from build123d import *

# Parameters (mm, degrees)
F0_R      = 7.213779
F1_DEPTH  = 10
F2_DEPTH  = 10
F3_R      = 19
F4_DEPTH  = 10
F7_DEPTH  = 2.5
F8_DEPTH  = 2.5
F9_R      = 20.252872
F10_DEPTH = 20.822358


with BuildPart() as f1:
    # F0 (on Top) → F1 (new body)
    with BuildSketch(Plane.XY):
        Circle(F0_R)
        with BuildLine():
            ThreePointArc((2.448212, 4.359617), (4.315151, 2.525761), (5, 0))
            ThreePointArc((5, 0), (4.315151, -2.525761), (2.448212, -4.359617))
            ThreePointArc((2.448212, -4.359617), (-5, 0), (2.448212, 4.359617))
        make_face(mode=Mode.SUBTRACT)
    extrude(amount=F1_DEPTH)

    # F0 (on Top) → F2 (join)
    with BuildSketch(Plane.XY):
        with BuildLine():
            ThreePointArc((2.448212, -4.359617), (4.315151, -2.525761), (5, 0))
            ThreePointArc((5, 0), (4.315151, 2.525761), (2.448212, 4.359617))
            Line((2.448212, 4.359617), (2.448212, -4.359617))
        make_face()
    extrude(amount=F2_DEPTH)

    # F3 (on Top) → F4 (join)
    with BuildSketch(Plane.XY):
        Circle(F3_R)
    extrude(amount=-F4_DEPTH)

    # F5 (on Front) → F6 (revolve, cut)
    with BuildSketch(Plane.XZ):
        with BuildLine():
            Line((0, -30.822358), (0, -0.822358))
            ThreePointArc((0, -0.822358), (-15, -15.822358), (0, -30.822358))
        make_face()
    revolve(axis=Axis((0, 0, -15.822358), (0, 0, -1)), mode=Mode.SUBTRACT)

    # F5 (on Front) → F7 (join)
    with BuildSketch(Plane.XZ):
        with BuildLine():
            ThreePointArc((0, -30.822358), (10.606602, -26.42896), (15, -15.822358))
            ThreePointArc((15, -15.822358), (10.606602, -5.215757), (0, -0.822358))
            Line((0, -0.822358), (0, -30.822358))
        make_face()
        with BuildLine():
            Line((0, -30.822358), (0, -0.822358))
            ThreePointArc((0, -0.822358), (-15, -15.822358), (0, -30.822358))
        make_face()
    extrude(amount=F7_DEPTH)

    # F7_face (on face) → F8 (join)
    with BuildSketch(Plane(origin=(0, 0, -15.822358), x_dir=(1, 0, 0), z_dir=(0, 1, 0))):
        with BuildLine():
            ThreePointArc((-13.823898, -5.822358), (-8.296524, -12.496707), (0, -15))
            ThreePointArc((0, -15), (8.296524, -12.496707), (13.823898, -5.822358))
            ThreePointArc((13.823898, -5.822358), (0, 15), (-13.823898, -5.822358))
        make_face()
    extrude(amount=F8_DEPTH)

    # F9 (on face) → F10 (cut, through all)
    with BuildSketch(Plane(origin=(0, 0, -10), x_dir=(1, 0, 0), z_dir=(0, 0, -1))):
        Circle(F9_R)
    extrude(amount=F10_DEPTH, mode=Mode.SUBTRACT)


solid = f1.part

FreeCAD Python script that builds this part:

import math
import FreeCAD as App
import Part
import Sketcher

doc = App.newDocument("Part")
body = doc.addObject("PartDesign::Body", "Body")

sketch1 = doc.addObject("Sketcher::SketchObject", "Sketch")
body.addObject(sketch1)
sketch1.AttachmentSupport = (doc.XY_Plane, [""])
sketch1.MapMode = "FlatFace"
sketch1.addGeometry([
    Part.Circle(App.Vector(0, 0, 0), App.Vector(0, 0, 1), 7),
    Part.ArcOfCircle(Part.Circle(App.Vector(0, 0, 0), App.Vector(0, 0, 1), 5), math.radians(61), math.radians(299)),
    Part.ArcOfCircle(Part.Circle(App.Vector(0, 0, 0), App.Vector(0, 0, 1), 5), math.radians(0), math.radians(61)),
    Part.ArcOfCircle(Part.Circle(App.Vector(0, 0, 0), App.Vector(0, 0, 1), 5), math.radians(-61), math.radians(0)),
], False)
sketch1.addConstraint([
    Sketcher.Constraint("Tangent", 1, 1, 2, 2),
    Sketcher.Constraint("Tangent", 2, 1, 3, 2),
    Sketcher.Constraint("Tangent", 3, 1, 1, 2),
    Sketcher.Constraint("Coincident", 0, 3, -1, 1),
    Sketcher.Constraint("Coincident", 1, 3, -1, 1),
    Sketcher.Constraint("PointOnObject", 2, 1, -1),
    Sketcher.Constraint("Vertical", 1, 1, 3, 1),
    Sketcher.Constraint("Radius", 1, 5.0),
    Sketcher.Constraint("Diameter", 0, 14.427558),
    Sketcher.Constraint("DistanceX", -1, 1, 1, 1, 2.448212),
])
pad1 = doc.addObject("PartDesign::Pad", "Pad")
body.addObject(pad1)
pad1.Profile = sketch1
pad1.Length = 10

sketch2 = doc.addObject("Sketcher::SketchObject", "Sketch001")
body.addObject(sketch2)
sketch2.AttachmentSupport = (doc.XY_Plane, [""])
sketch2.MapMode = "FlatFace"
sketch2.addGeometry([
    Part.ArcOfCircle(Part.Circle(App.Vector(0, 0, 0), App.Vector(0, 0, 1), 5), math.radians(-61), math.radians(0)),
    Part.ArcOfCircle(Part.Circle(App.Vector(0, 0, 0), App.Vector(0, 0, 1), 5), math.radians(0), math.radians(61)),
    Part.LineSegment(App.Vector(2, 4, 0), App.Vector(2, -4, 0)),
], False)
sketch2.addConstraint([
    Sketcher.Constraint("Tangent", 0, 2, 1, 1),
    Sketcher.Constraint("Coincident", 1, 2, 2, 1),
    Sketcher.Constraint("Coincident", 2, 2, 0, 1),
    Sketcher.Constraint("Vertical", 2),
    Sketcher.Constraint("Coincident", 0, 3, -1, 1),
    Sketcher.Constraint("Equal", 0, 1),
    Sketcher.Constraint("PointOnObject", 0, 2, -1),
    Sketcher.Constraint("DistanceX", -1, 1, 0, 2, 5.0),
    Sketcher.Constraint("DistanceY", 2, 2, 2, 1, 8.719234),
])
pad2 = doc.addObject("PartDesign::Pad", "Pad001")
body.addObject(pad2)
pad2.Profile = sketch2
pad2.Length = 10

sketch3 = doc.addObject("Sketcher::SketchObject", "Sketch002")
body.addObject(sketch3)
sketch3.AttachmentSupport = (doc.XY_Plane, [""])
sketch3.MapMode = "FlatFace"
sketch3.addGeometry(Part.Circle(App.Vector(0, 0, 0), App.Vector(0, 0, 1), 19), False)
sketch3.addConstraint([
    Sketcher.Constraint("Coincident", 0, 3, -1, 1),
    Sketcher.Constraint("Diameter", 0, 38.0),
])
pad3 = doc.addObject("PartDesign::Pad", "Pad002")
body.addObject(pad3)
pad3.Profile = sketch3
pad3.Length = 10
pad3.Reversed = True

sketch4 = doc.addObject("Sketcher::SketchObject", "Sketch003")
body.addObject(sketch4)
sketch4.AttachmentSupport = (doc.XZ_Plane, [""])
sketch4.MapMode = "FlatFace"
sketch4.addGeometry([
    Part.LineSegment(App.Vector(0, -31, 0), App.Vector(0, -1, 0)),
    Part.ArcOfCircle(Part.Circle(App.Vector(0, -16, 0), App.Vector(0, 0, 1), 15), math.radians(90), math.radians(270)),
], False)
sketch4.addConstraint([
    Sketcher.Constraint("Coincident", 0, 1, 1, 2),
    Sketcher.Constraint("Coincident", 1, 1, 0, 2),
    Sketcher.Constraint("Vertical", 0),
    Sketcher.Constraint("PointOnObject", 1, 3, -2),
    Sketcher.Constraint("PointOnObject", 0, 1, -2),
    Sketcher.Constraint("Radius", 1, 15.0),
    Sketcher.Constraint("DistanceY", 0, 1, -1, 1, 30.822358),
])
groove = doc.addObject("PartDesign::Groove", "Groove")
body.addObject(groove)
groove.Profile = sketch4
groove.ReferenceAxis = (sketch4, ["V_Axis"])
groove.Angle = 360

sketch5 = doc.addObject("Sketcher::SketchObject", "Sketch004")
body.addObject(sketch5)
sketch5.AttachmentSupport = (doc.XZ_Plane, [""])
sketch5.MapMode = "FlatFace"
sketch5.addGeometry([
    Part.ArcOfCircle(Part.Circle(App.Vector(0, -16, 0), App.Vector(0, 0, 1), 15), math.radians(-90), math.radians(0)),
    Part.ArcOfCircle(Part.Circle(App.Vector(0, -16, 0), App.Vector(0, 0, 1), 15), math.radians(0), math.radians(90)),
    Part.ArcOfCircle(Part.Circle(App.Vector(0, -16, 0), App.Vector(0, 0, 1), 15), math.radians(90), math.radians(270)),
], False)
sketch5.addConstraint([
    Sketcher.Constraint("Tangent", 0, 2, 1, 1),
    Sketcher.Constraint("Tangent", 1, 2, 2, 1),
    Sketcher.Constraint("Tangent", 2, 2, 0, 1),
    Sketcher.Constraint("PointOnObject", 0, 3, -2),
    Sketcher.Constraint("PointOnObject", 1, 2, -2),
    Sketcher.Constraint("PointOnObject", 2, 2, -2),
    Sketcher.Constraint("Horizontal", 2, 3, 0, 2),
    Sketcher.Constraint("Radius", 0, 14.999999),
    Sketcher.Constraint("DistanceY", 0, 3, -1, 1, 15.822359),
])
pad4 = doc.addObject("PartDesign::Pad", "Pad003")
body.addObject(pad4)
pad4.Profile = sketch5
pad4.Length = 2.5

sketch6 = doc.addObject("Sketcher::SketchObject", "Sketch005")
body.addObject(sketch6)
sketch6.AttachmentSupport = (doc.XZ_Plane, [""])
sketch6.MapMode = "FlatFace"
sketch6.addGeometry([
    Part.ArcOfCircle(Part.Circle(App.Vector(0, -16, 0), App.Vector(0, 0, 1), 15), math.radians(90), math.radians(157)),
    Part.ArcOfCircle(Part.Circle(App.Vector(0, -16, 0), App.Vector(0, 0, 1), 15), math.radians(23), math.radians(90)),
    Part.ArcOfCircle(Part.Circle(App.Vector(0, -16, 0), App.Vector(0, 0, 1), 15), math.radians(157), math.radians(383)),
], False)
sketch6.addConstraint([
    Sketcher.Constraint("Tangent", 0, 1, 1, 2),
    Sketcher.Constraint("Tangent", 1, 1, 2, 2),
    Sketcher.Constraint("Tangent", 2, 1, 0, 2),
    Sketcher.Constraint("Symmetric", 1, 1, 2, 1, -2),
    Sketcher.Constraint("PointOnObject", 0, 1, -2),
    Sketcher.Constraint("Radius", 0, 15.000001),
    Sketcher.Constraint("DistanceY", 1, 1, -1, 1, 10.0),
    Sketcher.Constraint("DistanceX", -1, 1, 1, 1, 13.823898),
])
pad5 = doc.addObject("PartDesign::Pad", "Pad004")
body.addObject(pad5)
pad5.Profile = sketch6
pad5.Length = 2.5
pad5.Reversed = True

sketch7 = doc.addObject("Sketcher::SketchObject", "Sketch006")
body.addObject(sketch7)
sketch7.AttachmentSupport = (doc.XY_Plane, [""])
sketch7.MapMode = "FlatFace"
sketch7.AttachmentOffset = App.Placement(App.Vector(0, 0, -10), App.Rotation())
sketch7.addGeometry(Part.Circle(App.Vector(0, 0, 0), App.Vector(0, 0, 1), 20), False)
sketch7.addConstraint([
    Sketcher.Constraint("Coincident", 0, 3, -1, 1),
    Sketcher.Constraint("Diameter", 0, 40.505744),
])
pocket1 = doc.addObject("PartDesign::Pocket", "Pocket")
body.addObject(pocket1)
pocket1.Profile = sketch7
pocket1.Type = "ThroughAll"

doc.recompute()
